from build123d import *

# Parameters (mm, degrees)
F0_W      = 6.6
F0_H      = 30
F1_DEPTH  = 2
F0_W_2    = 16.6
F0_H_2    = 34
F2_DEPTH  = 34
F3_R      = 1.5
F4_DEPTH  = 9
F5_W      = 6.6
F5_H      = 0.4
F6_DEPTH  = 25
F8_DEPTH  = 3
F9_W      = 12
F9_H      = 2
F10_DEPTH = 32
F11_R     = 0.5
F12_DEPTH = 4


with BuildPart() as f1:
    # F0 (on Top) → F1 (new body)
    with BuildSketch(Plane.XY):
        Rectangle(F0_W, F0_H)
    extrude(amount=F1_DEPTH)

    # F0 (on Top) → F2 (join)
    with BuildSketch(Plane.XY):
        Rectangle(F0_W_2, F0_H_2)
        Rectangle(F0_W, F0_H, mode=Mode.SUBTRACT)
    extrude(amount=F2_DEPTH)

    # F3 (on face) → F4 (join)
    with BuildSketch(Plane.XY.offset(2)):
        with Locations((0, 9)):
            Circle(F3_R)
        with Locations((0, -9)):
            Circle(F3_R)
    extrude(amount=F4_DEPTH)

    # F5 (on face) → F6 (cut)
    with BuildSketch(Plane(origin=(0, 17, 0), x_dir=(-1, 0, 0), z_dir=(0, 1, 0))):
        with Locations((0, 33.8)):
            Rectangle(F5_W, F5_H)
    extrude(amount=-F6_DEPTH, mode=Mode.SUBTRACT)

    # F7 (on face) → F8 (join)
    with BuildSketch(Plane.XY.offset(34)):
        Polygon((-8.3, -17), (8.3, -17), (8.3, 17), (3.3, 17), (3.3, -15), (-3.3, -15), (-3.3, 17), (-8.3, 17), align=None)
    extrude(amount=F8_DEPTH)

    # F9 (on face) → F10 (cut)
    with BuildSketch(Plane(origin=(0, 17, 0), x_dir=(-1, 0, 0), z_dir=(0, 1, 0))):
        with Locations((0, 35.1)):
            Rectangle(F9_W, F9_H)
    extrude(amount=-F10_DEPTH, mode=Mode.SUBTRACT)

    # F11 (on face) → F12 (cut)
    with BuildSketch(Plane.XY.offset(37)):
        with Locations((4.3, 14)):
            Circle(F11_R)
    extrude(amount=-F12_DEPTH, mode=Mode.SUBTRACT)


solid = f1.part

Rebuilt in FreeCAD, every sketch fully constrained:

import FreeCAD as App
import Part
import Sketcher
Q = App.Units.Quantity


def add_polygon(sketch, points):
    """Adds a closed chain of lines whose ends are joined by coincident constraints."""
    first, n = sketch.GeometryCount, len(points)
    for a, b in zip(points, points[1:] + points[:1]):
        sketch.addGeometry(Part.LineSegment(App.Vector(*a, 0), App.Vector(*b, 0)), False)
    for i in range(n):
        sketch.addConstraint(Sketcher.Constraint("Coincident", first + i, 2, first + (i + 1) % n, 1))

doc = App.newDocument("Part")
body = doc.addObject("PartDesign::Body", "Body")

# Sketch on XY plane
sketch1 = body.newObject("Sketcher::SketchObject", "Sketch")
sketch1.AttachmentSupport = (doc.getObject("XY_Plane"), [""])
sketch1.MapMode = "FlatFace"
add_polygon(sketch1, [(-3, 15), (-3, -15), (3, -15), (3, 15)])  # lines 0-3
sketch1.addConstraint(Sketcher.Constraint("Vertical", 0))
sketch1.addConstraint(Sketcher.Constraint("Horizontal", 1))
sketch1.addConstraint(Sketcher.Constraint("Vertical", 2))
sketch1.addConstraint(Sketcher.Constraint("Horizontal", 3))
sketch1.addConstraint(Sketcher.Constraint("Symmetric", 0, 2, 2, 2, -1, 1))
sketch1.addConstraint(Sketcher.Constraint("DistanceY", 0, 2, 0, 1, Q("30 mm")))
sketch1.addConstraint(Sketcher.Constraint("DistanceX", 1, 1, 1, 2, Q("6.6 mm")))
pad1 = body.newObject("PartDesign::Pad", "Pad")
pad1.Profile = sketch1
pad1.Length = 2

# Sketch on XY plane
sketch2 = body.newObject("Sketcher::SketchObject", "Sketch001")
sketch2.AttachmentSupport = (doc.getObject("XY_Plane"), [""])
sketch2.MapMode = "FlatFace"
add_polygon(sketch2, [(-8, 17), (-8, -17), (8, -17), (8, 17)])  # lines 0-3
add_polygon(sketch2, [(3, -15), (-3, -15), (-3, 15), (3, 15)])  # lines 4-7
sketch2.addConstraint(Sketcher.Constraint("Vertical", 0))
sketch2.addConstraint(Sketcher.Constraint("Horizontal", 1))
sketch2.addConstraint(Sketcher.Constraint("Vertical", 2))
sketch2.addConstraint(Sketcher.Constraint("Horizontal", 3))
sketch2.addConstraint(Sketcher.Constraint("Horizontal", 4))
sketch2.addConstraint(Sketcher.Constraint("Vertical", 5))
sketch2.addConstraint(Sketcher.Constraint("Horizontal", 6))
sketch2.addConstraint(Sketcher.Constraint("Vertical", 7))
sketch2.addConstraint(Sketcher.Constraint("Symmetric", 0, 2, 2, 2, -1, 1))
sketch2.addConstraint(Sketcher.Constraint("Symmetric", 4, 2, 6, 2, -1, 1))
sketch2.addConstraint(Sketcher.Constraint("DistanceY", 0, 2, 0, 1, Q("34 mm")))
sketch2.addConstraint(Sketcher.Constraint("DistanceY", 5, 1, 5, 2, Q("30 mm")))
sketch2.addConstraint(Sketcher.Constraint("DistanceX", 1, 1, 1, 2, Q("16.6 mm")))
sketch2.addConstraint(Sketcher.Constraint("DistanceX", 4, 2, 4, 1, Q("6.6 mm")))
pad2 = body.newObject("PartDesign::Pad", "Pad001")
pad2.Profile = sketch2
pad2.Length = 34

# Sketch on XY plane
sketch3 = body.newObject("Sketcher::SketchObject", "Sketch002")
sketch3.AttachmentSupport = (doc.getObject("XY_Plane"), [""])
sketch3.MapMode = "FlatFace"
sketch3.AttachmentOffset = App.Placement(App.Vector(0, 0, 2), App.Rotation())
sketch3.addGeometry(Part.Circle(App.Vector(0, 9, 0), App.Vector(0, 0, 1), 1.5), False)
sketch3.addGeometry(Part.Circle(App.Vector(0, -9, 0), App.Vector(0, 0, 1), 1.5), False)
sketch3.addConstraint(Sketcher.Constraint("Equal", 0, 1))
sketch3.addConstraint(Sketcher.Constraint("Symmetric", 0, 3, 1, 3, -1, 1))
sketch3.addConstraint(Sketcher.Constraint("PointOnObject", 0, 3, -2))
sketch3.addConstraint(Sketcher.Constraint("Diameter", 0, Q("3 mm")))
sketch3.addConstraint(Sketcher.Constraint("DistanceY", -1, 1, 0, 3, Q("9 mm")))
pad3 = body.newObject("PartDesign::Pad", "Pad002")
pad3.Profile = sketch3
pad3.Length = 9

# Sketch on XZ plane
sketch4 = body.newObject("Sketcher::SketchObject", "Sketch003")
sketch4.AttachmentSupport = (doc.getObject("XZ_Plane"), [""])
sketch4.MapMode = "FlatFace"
sketch4.AttachmentOffset = App.Placement(App.Vector(0, 0, -17), App.Rotation())
add_polygon(sketch4, [(3.3, 34), (3.3, 33.6), (-3.3, 33.6), (-3.3, 34)])  # lines 0-3
sketch4.addConstraint(Sketcher.Constraint("Vertical", 0))
sketch4.addConstraint(Sketcher.Constraint("Horizontal", 1))
sketch4.addConstraint(Sketcher.Constraint("Vertical", 2))
sketch4.addConstraint(Sketcher.Constraint("Horizontal", 3))
sketch4.addConstraint(Sketcher.Constraint("DistanceX", 1, 2, 1, 1, Q("6.6 mm")))
sketch4.addConstraint(Sketcher.Constraint("DistanceY", 0, 2, 0, 1, Q("0.4 mm")))
sketch4.addConstraint(Sketcher.Constraint("DistanceY", -1, 1, 2, 2, Q("34 mm")))
sketch4.addConstraint(Sketcher.Constraint("DistanceX", -1, 1, 0, 2, Q("3.3 mm")))
pocket1 = body.newObject("PartDesign::Pocket", "Pocket")
pocket1.Profile = sketch4
pocket1.Length = 25
pocket1.Reversed = True

# Sketch on XY plane
sketch5 = body.newObject("Sketcher::SketchObject", "Sketch004")
sketch5.AttachmentSupport = (doc.getObject("XY_Plane"), [""])
sketch5.MapMode = "FlatFace"
sketch5.AttachmentOffset = App.Placement(App.Vector(0, 0, 34), App.Rotation())
add_polygon(sketch5, [(-8, -17), (8, -17), (8, 17), (3, 17), (3, -15), (-3, -15), (-3, 17), (-8, 17)])  # lines 0-7
sketch5.addConstraint(Sketcher.Constraint("Horizontal", 0))
sketch5.addConstraint(Sketcher.Constraint("Vertical", 1))
sketch5.addConstraint(Sketcher.Constraint("Horizontal", 2))
sketch5.addConstraint(Sketcher.Constraint("Vertical", 3))
sketch5.addConstraint(Sketcher.Constraint("Horizontal", 4))
sketch5.addConstraint(Sketcher.Constraint("Vertical", 5))
sketch5.addConstraint(Sketcher.Constraint("Horizontal", 6))
sketch5.addConstraint(Sketcher.Constraint("Vertical", 7))
sketch5.addConstraint(Sketcher.Constraint("Symmetric", 0, 2, 6, 2, -1, 1))
sketch5.addConstraint(Sketcher.Constraint("Symmetric", 2, 2, 5, 2, -2))
sketch5.addConstraint(Sketcher.Constraint("DistanceX", 2, 2, 2, 1, Q("5 mm")))
sketch5.addConstraint(Sketcher.Constraint("DistanceY", 1, 1, 1, 2, Q("34 mm")))
sketch5.addConstraint(Sketcher.Constraint("DistanceY", 3, 2, 3, 1, Q("32 mm")))
sketch5.addConstraint(Sketcher.Constraint("DistanceX", 0, 1, 0, 2, Q("16.6 mm")))
pad4 = body.newObject("PartDesign::Pad", "Pad003")
pad4.Profile = sketch5
pad4.Length = 3

# Sketch on XZ plane
sketch6 = body.newObject("Sketcher::SketchObject", "Sketch005")
sketch6.AttachmentSupport = (doc.getObject("XZ_Plane"), [""])
sketch6.MapMode = "FlatFace"
sketch6.AttachmentOffset = App.Placement(App.Vector(0, 0, -17), App.Rotation())
add_polygon(sketch6, [(6, 36.1), (6, 34.1), (-6, 34.1), (-6, 36.1)])  # lines 0-3
sketch6.addConstraint(Sketcher.Constraint("Vertical", 0))
sketch6.addConstraint(Sketcher.Constraint("Horizontal", 1))
sketch6.addConstraint(Sketcher.Constraint("Vertical", 2))
sketch6.addConstraint(Sketcher.Constraint("Horizontal", 3))
sketch6.addConstraint(Sketcher.Constraint("DistanceX", 1, 2, 1, 1, Q("12 mm")))
sketch6.addConstraint(Sketcher.Constraint("DistanceY", 0, 2, 0, 1, Q("2 mm")))
sketch6.addConstraint(Sketcher.Constraint("DistanceX", -1, 1, 0, 2, Q("6 mm")))
sketch6.addConstraint(Sketcher.Constraint("DistanceY", -1, 1, 0, 2, Q("34.1 mm")))
pocket2 = body.newObject("PartDesign::Pocket", "Pocket001")
pocket2.Profile = sketch6
pocket2.Length = 32
pocket2.Reversed = True

# Sketch on XY plane
sketch7 = body.newObject("Sketcher::SketchObject", "Sketch006")
sketch7.AttachmentSupport = (doc.getObject("XY_Plane"), [""])
sketch7.MapMode = "FlatFace"
sketch7.AttachmentOffset = App.Placement(App.Vector(0, 0, 37), App.Rotation())
sketch7.addGeometry(Part.Circle(App.Vector(4.3, 14, 0), App.Vector(0, 0, 1), 0.5), False)
sketch7.addConstraint(Sketcher.Constraint("Diameter", 0, Q("1 mm")))
sketch7.addConstraint(Sketcher.Constraint("DistanceY", -1, 1, 0, 3, Q("14 mm")))
sketch7.addConstraint(Sketcher.Constraint("DistanceX", -1, 1, 0, 3, Q("4.3 mm")))
pocket3 = body.newObject("PartDesign::Pocket", "Pocket002")
pocket3.Profile = sketch7
pocket3.Length = 4

doc.recompute()
